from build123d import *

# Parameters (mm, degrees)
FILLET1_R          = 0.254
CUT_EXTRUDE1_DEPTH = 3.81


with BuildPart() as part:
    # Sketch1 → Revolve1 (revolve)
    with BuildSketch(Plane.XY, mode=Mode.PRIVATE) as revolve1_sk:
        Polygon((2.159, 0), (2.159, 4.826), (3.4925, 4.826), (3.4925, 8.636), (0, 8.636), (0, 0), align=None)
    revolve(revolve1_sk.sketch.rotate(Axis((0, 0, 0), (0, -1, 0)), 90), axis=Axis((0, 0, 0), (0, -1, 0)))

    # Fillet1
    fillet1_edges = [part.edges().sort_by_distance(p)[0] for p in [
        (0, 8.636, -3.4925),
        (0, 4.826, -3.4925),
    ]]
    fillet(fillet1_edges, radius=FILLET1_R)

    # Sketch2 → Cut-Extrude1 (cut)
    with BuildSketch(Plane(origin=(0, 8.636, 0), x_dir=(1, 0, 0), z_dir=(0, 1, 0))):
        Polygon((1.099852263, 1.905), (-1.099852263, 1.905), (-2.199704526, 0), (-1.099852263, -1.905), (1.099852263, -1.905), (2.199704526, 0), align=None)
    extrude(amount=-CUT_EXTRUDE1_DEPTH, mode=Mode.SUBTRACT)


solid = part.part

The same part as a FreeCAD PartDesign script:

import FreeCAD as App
import Part
import Sketcher

V = App.Vector
Q = App.Units.Quantity


def edges_at(feature, points):
    """Names of the edges that pass closest to the given points."""
    edges = feature.Shape.Edges
    near = lambda p: min(range(len(edges)), key=lambda i: edges[i].distToShape(Part.Vertex(*p))[0])
    return sorted({f"Edge{near(p) + 1}" for p in points})

doc = App.newDocument("Part")
body = doc.addObject("PartDesign::Body", "Body")

sketch1 = body.newObject("Sketcher::SketchObject", "Sketch")
sketch1.AttachmentSupport = (doc.getObject("XY_Plane"), [""])
sketch1.MapMode = "FlatFace"
sketch1.addGeometry(Part.LineSegment(V(2.159, 0, 0), V(2.159, 4.826, 0)), False)
sketch1.addGeometry(Part.LineSegment(V(2.159, 4.826, 0), V(3.4925, 4.826, 0)), False)
sketch1.addGeometry(Part.LineSegment(V(3.4925, 4.826, 0), V(3.4925, 8.636, 0)), False)
sketch1.addGeometry(Part.LineSegment(V(3.4925, 8.636, 0), V(0, 8.636, 0)), False)
sketch1.addGeometry(Part.LineSegment(V(0, 8.636, 0), V(0, 0, 0)), False)
sketch1.addGeometry(Part.LineSegment(V(0, 0, 0), V(2.159, 0, 0)), False)
sketch1.addConstraint(Sketcher.Constraint("Coincident", 0, 2, 1, 1))
sketch1.addConstraint(Sketcher.Constraint("Coincident", 1, 2, 2, 1))
sketch1.addConstraint(Sketcher.Constraint("Coincident", 2, 2, 3, 1))
sketch1.addConstraint(Sketcher.Constraint("Coincident", 3, 2, 4, 1))
sketch1.addConstraint(Sketcher.Constraint("Coincident", 4, 2, 5, 1))
sketch1.addConstraint(Sketcher.Constraint("Coincident", 5, 2, 0, 1))
sketch1.addConstraint(Sketcher.Constraint("Vertical", 0))
sketch1.addConstraint(Sketcher.Constraint("Horizontal", 1))
sketch1.addConstraint(Sketcher.Constraint("Vertical", 2))
sketch1.addConstraint(Sketcher.Constraint("Horizontal", 3))
sketch1.addConstraint(Sketcher.Constraint("Vertical", 4))
sketch1.addConstraint(Sketcher.Constraint("Horizontal", 5))
sketch1.addConstraint(Sketcher.Constraint("Coincident", 4, 2, -1, 1))
sketch1.addConstraint(Sketcher.Constraint("DistanceY", 0, 1, 0, 2, Q("0.19 in")))
sketch1.addConstraint(Sketcher.Constraint("DistanceY", 2, 1, 2, 2, Q("0.15 in")))
sketch1.addConstraint(Sketcher.Constraint("DistanceX", 5, 1, 5, 2, Q("0.085 in")))
sketch1.addConstraint(Sketcher.Constraint("DistanceX", 1, 1, 1, 2, Q("0.0525 in")))
revolution = body.newObject("PartDesign::Revolution", "Revolution")
revolution.Profile = sketch1
revolution.ReferenceAxis = (sketch1, ["V_Axis"])
revolution.Angle = 360
doc.recompute()

fillet = body.newObject("PartDesign::Fillet", "Fillet")
fillet.Base = (revolution, edges_at(revolution, [(0, 8.636, -3.493), (0, 4.826, -3.493)]))
fillet.Radius = Q("0.01 in")

sketch2 = body.newObject("Sketcher::SketchObject", "Sketch001")
sketch2.AttachmentSupport = (doc.getObject("XZ_Plane"), [""])
sketch2.MapMode = "FlatFace"
sketch2.AttachmentOffset = App.Placement(V(0, 0, -0.34 * 25.4), App.Rotation())
sketch2.addGeometry(Part.LineSegment(V(1.099852, -1.905, 0), V(-1.099852, -1.905, 0)), False)
sketch2.addGeometry(Part.LineSegment(V(-1.099852, -1.905, 0), V(-2.199705, 0, 0)), False)
sketch2.addGeometry(Part.LineSegment(V(-2.199705, 0, 0), V(-1.099852, 1.905, 0)), False)
sketch2.addGeometry(Part.LineSegment(V(-1.099852, 1.905, 0), V(1.099852, 1.905, 0)), False)
sketch2.addGeometry(Part.LineSegment(V(1.099852, 1.905, 0), V(2.199705, 0, 0)), False)
sketch2.addGeometry(Part.LineSegment(V(2.199705, 0, 0), V(1.099852, -1.905, 0)), False)
sketch2.addConstraint(Sketcher.Constraint("Coincident", 0, 2, 1, 1))
sketch2.addConstraint(Sketcher.Constraint("Coincident", 1, 2, 2, 1))
sketch2.addConstraint(Sketcher.Constraint("Coincident", 2, 2, 3, 1))
sketch2.addConstraint(Sketcher.Constraint("Coincident", 3, 2, 4, 1))
sketch2.addConstraint(Sketcher.Constraint("Coincident", 4, 2, 5, 1))
sketch2.addConstraint(Sketcher.Constraint("Coincident", 5, 2, 0, 1))
sketch2.addConstraint(Sketcher.Constraint("Horizontal", 0))
sketch2.addConstraint(Sketcher.Constraint("Horizontal", 3))
sketch2.addConstraint(Sketcher.Constraint("Symmetric", 0, 2, 3, 2, -1, 1))
sketch2.addConstraint(Sketcher.Constraint("Symmetric", 1, 2, 4, 2, -1, 1))
sketch2.addConstraint(Sketcher.Constraint("PointOnObject", 1, 2, -1))
sketch2.addConstraint(Sketcher.Constraint("Parallel", 2, 5))
sketch2.addConstraint(Sketcher.Constraint("Vertical", 0, 2, 2, 2))
sketch2.addConstraint(Sketcher.Constraint("Angle", 1, Q("120 deg")))
sketch2.addConstraint(Sketcher.Constraint("DistanceY", 0, 2, 2, 2, Q("0.15 in")))
sketch2.addConstraint(Sketcher.Constraint("DistanceX", 0, 2, 0, 1, 2.199705))
pocket1 = body.newObject("PartDesign::Pocket", "Pocket")
pocket1.Profile = sketch2
pocket1.Length = Q("0.15 in")
pocket1.Reversed = True

doc.recompute()
